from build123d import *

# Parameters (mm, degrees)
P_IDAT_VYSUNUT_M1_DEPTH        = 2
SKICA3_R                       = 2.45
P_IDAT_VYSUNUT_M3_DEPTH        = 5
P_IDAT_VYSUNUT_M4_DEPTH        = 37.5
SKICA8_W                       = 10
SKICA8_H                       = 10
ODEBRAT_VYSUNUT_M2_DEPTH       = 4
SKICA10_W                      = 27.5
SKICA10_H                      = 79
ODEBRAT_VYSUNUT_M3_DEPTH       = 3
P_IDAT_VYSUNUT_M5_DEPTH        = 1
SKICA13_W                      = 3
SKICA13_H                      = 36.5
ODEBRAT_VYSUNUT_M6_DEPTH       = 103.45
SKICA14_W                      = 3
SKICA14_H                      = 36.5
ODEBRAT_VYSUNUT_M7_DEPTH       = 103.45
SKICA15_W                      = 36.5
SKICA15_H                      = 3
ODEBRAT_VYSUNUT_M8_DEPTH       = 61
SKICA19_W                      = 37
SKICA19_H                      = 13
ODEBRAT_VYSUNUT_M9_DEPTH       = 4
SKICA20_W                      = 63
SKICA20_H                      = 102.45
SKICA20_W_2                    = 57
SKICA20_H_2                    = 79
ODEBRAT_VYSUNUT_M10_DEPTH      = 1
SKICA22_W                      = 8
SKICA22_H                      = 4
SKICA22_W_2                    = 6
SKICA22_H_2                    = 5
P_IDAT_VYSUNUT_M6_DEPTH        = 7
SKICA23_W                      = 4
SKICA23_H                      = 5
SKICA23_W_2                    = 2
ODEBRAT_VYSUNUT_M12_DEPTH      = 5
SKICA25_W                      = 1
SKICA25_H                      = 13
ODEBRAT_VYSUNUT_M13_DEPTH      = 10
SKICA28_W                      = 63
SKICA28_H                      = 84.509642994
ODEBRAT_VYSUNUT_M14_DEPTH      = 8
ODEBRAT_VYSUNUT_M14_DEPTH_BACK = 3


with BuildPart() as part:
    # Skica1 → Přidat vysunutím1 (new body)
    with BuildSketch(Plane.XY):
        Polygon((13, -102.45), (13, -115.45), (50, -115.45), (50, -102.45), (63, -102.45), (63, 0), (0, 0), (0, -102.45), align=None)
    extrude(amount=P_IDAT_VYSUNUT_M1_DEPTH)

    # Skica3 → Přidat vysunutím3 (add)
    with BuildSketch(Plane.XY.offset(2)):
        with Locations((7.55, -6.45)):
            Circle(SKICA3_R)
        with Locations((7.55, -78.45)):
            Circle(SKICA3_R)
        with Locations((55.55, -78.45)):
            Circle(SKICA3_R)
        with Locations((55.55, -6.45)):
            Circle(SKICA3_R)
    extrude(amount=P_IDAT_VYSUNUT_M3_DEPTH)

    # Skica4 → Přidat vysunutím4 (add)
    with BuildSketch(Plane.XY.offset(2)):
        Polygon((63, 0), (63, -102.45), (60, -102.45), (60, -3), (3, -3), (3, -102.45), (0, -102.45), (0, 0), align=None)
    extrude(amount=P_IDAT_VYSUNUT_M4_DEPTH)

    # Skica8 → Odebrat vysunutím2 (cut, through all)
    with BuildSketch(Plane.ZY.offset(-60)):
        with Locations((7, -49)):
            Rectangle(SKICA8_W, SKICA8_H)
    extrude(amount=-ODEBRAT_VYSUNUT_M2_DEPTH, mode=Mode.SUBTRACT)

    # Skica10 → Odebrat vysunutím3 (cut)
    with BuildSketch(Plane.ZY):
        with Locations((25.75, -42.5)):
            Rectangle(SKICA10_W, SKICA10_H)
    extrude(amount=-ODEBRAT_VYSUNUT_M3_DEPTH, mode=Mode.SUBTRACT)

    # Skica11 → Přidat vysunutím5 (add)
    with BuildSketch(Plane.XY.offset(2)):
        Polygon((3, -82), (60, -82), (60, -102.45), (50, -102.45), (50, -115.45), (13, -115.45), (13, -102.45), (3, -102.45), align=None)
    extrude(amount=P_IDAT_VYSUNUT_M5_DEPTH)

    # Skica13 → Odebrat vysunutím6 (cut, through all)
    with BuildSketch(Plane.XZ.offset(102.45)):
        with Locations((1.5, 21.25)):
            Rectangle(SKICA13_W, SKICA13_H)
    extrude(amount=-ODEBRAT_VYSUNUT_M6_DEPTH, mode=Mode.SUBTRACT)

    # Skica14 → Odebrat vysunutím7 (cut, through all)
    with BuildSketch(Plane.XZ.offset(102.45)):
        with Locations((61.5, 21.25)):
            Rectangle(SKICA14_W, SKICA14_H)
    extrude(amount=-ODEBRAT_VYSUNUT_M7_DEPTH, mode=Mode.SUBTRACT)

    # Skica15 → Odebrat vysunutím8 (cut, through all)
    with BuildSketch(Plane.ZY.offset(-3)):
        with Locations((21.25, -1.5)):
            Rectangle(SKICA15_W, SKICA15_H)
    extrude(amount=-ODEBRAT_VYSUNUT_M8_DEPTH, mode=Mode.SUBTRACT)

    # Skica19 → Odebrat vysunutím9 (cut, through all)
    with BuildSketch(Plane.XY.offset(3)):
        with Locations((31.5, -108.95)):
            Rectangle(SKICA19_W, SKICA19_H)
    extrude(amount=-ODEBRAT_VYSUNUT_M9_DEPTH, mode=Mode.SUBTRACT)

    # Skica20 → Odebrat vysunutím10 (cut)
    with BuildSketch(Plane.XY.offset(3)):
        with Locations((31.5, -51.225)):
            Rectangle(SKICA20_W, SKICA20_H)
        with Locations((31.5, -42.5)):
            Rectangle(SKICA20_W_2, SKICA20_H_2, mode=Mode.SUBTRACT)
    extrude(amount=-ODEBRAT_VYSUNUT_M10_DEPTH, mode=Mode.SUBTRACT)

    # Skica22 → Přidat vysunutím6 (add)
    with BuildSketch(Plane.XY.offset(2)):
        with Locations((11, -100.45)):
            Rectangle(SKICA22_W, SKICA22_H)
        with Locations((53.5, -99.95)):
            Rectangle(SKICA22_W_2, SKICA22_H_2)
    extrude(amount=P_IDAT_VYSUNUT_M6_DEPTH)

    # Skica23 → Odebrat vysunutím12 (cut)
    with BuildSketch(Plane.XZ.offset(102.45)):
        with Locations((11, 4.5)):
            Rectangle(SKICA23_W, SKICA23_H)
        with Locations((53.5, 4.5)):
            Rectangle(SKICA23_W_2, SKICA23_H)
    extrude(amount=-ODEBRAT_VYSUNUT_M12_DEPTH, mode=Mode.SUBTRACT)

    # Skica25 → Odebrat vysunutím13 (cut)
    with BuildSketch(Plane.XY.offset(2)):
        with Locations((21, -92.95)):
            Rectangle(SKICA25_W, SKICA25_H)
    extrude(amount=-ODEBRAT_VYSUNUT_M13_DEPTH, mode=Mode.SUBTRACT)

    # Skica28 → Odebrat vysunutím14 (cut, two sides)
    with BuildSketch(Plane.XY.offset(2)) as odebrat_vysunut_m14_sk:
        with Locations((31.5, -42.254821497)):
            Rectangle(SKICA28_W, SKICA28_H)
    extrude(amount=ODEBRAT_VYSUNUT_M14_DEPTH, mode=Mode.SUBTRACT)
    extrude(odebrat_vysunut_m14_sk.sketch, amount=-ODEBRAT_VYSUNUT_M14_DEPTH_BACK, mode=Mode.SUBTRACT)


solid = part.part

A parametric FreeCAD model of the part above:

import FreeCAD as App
import Part
import Sketcher

V = App.Vector
Q = App.Units.Quantity


def add_polygon(sketch, points):
    """Adds a closed chain of lines whose ends are joined by coincident constraints."""
    first, n = sketch.GeometryCount, len(points)
    for a, b in zip(points, points[1:] + points[:1]):
        sketch.addGeometry(Part.LineSegment(App.Vector(*a, 0), App.Vector(*b, 0)), False)
    for i in range(n):
        sketch.addConstraint(Sketcher.Constraint("Coincident", first + i, 2, first + (i + 1) % n, 1))

doc = App.newDocument("Part")
body = doc.addObject("PartDesign::Body", "Body")

# Sketch on XY plane
sketch1 = doc.addObject("Sketcher::SketchObject", "Sketch")
body.addObject(sketch1)
sketch1.AttachmentSupport = (doc.XY_Plane, [""])
sketch1.MapMode = "FlatFace"
add_polygon(sketch1, [(13, -102), (13, -115), (50, -115), (50, -102), (63, -102), (63, 0), (0, 0), (0, -102)])  # lines 0-7
sketch1.addConstraint([
    Sketcher.Constraint("Vertical", 0),
    Sketcher.Constraint("Horizontal", 1),
    Sketcher.Constraint("Vertical", 2),
    Sketcher.Constraint("Horizontal", 3),
    Sketcher.Constraint("Vertical", 4),
    Sketcher.Constraint("Horizontal", 5),
    Sketcher.Constraint("Vertical", 6),
    Sketcher.Constraint("Horizontal", 7),
    Sketcher.Constraint("Coincident", 5, 2, -1, 1),
    Sketcher.Constraint("Horizontal", 3, 2, 6, 2),
    Sketcher.Constraint("Equal", 3, 7),
    Sketcher.Constraint("Equal", 7, 0),
    Sketcher.Constraint("DistanceX", 1, 1, 1, 2, Q("37 mm")),
    Sketcher.Constraint("DistanceX", 3, 1, 3, 2, Q("13 mm")),
    Sketcher.Constraint("DistanceY", 4, 1, 4, 2, Q("102.45 mm")),
])
pad1 = doc.addObject("PartDesign::Pad", "Pad")
body.addObject(pad1)
pad1.Profile = sketch1
pad1.Length = 2

# Sketch on XY plane
sketch2 = doc.addObject("Sketcher::SketchObject", "Sketch001")
body.addObject(sketch2)
sketch2.AttachmentSupport = (doc.XY_Plane, [""])
sketch2.MapMode = "FlatFace"
sketch2.AttachmentOffset = App.Placement(V(0, 0, 2), App.Rotation())
sketch2.addGeometry([
    Part.Circle(V(7.5, -6.5, 0), V(0, 0, 1), 2.5),
    Part.Circle(V(7.5, -78.5, 0), V(0, 0, 1), 2.5),
    Part.Circle(V(55.5, -78.5, 0), V(0, 0, 1), 2.5),
    Part.Circle(V(55.5, -6.5, 0), V(0, 0, 1), 2.5),
], False)
sketch2.addConstraint([
    Sketcher.Constraint("Equal", 0, 1),
    Sketcher.Constraint("Equal", 1, 2),
    Sketcher.Constraint("Equal", 2, 3),
    Sketcher.Constraint("Horizontal", 1, 3, 2, 3),
    Sketcher.Constraint("Horizontal", 0, 3, 3, 3),
    Sketcher.Constraint("Vertical", 0, 3, 1, 3),
    Sketcher.Constraint("Vertical", 2, 3, 3, 3),
    Sketcher.Constraint("Diameter", 0, Q("4.9 mm")),
    Sketcher.Constraint("DistanceY", 1, 3, 0, 3, Q("72 mm")),
    Sketcher.Constraint("DistanceX", 1, 3, 2, 3, Q("48 mm")),
    Sketcher.Constraint("DistanceX", -1, 1, 0, 3, Q("7.55 mm")),
    Sketcher.Constraint("DistanceY", 0, 3, -1, 1, Q("6.45 mm")),
])
pad2 = doc.addObject("PartDesign::Pad", "Pad001")
body.addObject(pad2)
pad2.Profile = sketch2
pad2.Length = 5

# Sketch on XY plane
sketch3 = doc.addObject("Sketcher::SketchObject", "Sketch002")
body.addObject(sketch3)
sketch3.AttachmentSupport = (doc.XY_Plane, [""])
sketch3.MapMode = "FlatFace"
sketch3.AttachmentOffset = App.Placement(V(0, 0, 2), App.Rotation())
add_polygon(sketch3, [(63, -102.5), (63, 0), (0, 0), (0, -102.5), (3, -102.5), (3, -3), (60, -3), (60, -102.5)])  # lines 0-7
sketch3.addConstraint([
    Sketcher.Constraint("Vertical", 0),
    Sketcher.Constraint("Horizontal", 1),
    Sketcher.Constraint("Vertical", 2),
    Sketcher.Constraint("Horizontal", 3),
    Sketcher.Constraint("Vertical", 4),
    Sketcher.Constraint("Horizontal", 5),
    Sketcher.Constraint("Vertical", 6),
    Sketcher.Constraint("Horizontal", 7),
    Sketcher.Constraint("Coincident", 1, 2, -1, 1),
    Sketcher.Constraint("Horizontal", 3, 2, 6, 2),
    Sketcher.Constraint("Equal", 3, 7),
    Sketcher.Constraint("DistanceX", 1, 2, 1, 1, Q("63 mm")),
    Sketcher.Constraint("DistanceX", 3, 1, 3, 2, Q("3 mm")),
    Sketcher.Constraint("DistanceY", 4, 2, -1, 1, Q("3 mm")),
    Sketcher.Constraint("DistanceY", 0, 1, 0, 2, Q("102.45 mm")),
])
pad3 = doc.addObject("PartDesign::Pad", "Pad002")
body.addObject(pad3)
pad3.Profile = sketch3
pad3.Length = 37.5

# Sketch on YZ plane
sketch4 = doc.addObject("Sketcher::SketchObject", "Sketch003")
body.addObject(sketch4)
sketch4.AttachmentSupport = (doc.YZ_Plane, [""])
sketch4.MapMode = "FlatFace"
sketch4.AttachmentOffset = App.Placement(V(0, 0, 60), App.Rotation())
add_polygon(sketch4, [(-44, 2), (-54, 2), (-54, 12), (-44, 12)])  # lines 0-3
sketch4.addConstraint([
    Sketcher.Constraint("Horizontal", 0),
    Sketcher.Constraint("Vertical", 1),
    Sketcher.Constraint("Horizontal", 2),
    Sketcher.Constraint("Vertical", 3),
    Sketcher.Constraint("Equal", 2, 1),
    Sketcher.Constraint("DistanceX", 0, 2, 0, 1, Q("10 mm")),
    Sketcher.Constraint("DistanceX", 0, 2, -1, 1, Q("54 mm")),
    Sketcher.Constraint("DistanceY", -1, 1, 0, 2, Q("2 mm")),
])
pocket1 = doc.addObject("PartDesign::Pocket", "Pocket")
body.addObject(pocket1)
pocket1.Profile = sketch4
pocket1.Type = "ThroughAll"
pocket1.Reversed = True

# Sketch on YZ plane
sketch5 = doc.addObject("Sketcher::SketchObject", "Sketch004")
body.addObject(sketch5)
sketch5.AttachmentSupport = (doc.YZ_Plane, [""])
sketch5.MapMode = "FlatFace"
add_polygon(sketch5, [(-3, 12), (-82, 12), (-82, 40), (-3, 40)])  # lines 0-3
sketch5.addConstraint([
    Sketcher.Constraint("Horizontal", 0),
    Sketcher.Constraint("Vertical", 1),
    Sketcher.Constraint("Horizontal", 2),
    Sketcher.Constraint("Vertical", 3),
    Sketcher.Constraint("DistanceX", 0, 2, 0, 1, Q("79 mm")),
    Sketcher.Constraint("DistanceY", 1, 1, 1, 2, Q("27.5 mm")),
    Sketcher.Constraint("DistanceX", 0, 2, -1, 1, Q("82 mm")),
    Sketcher.Constraint("DistanceY", -1, 1, 0, 2, Q("12 mm")),
])
pocket2 = doc.addObject("PartDesign::Pocket", "Pocket001")
body.addObject(pocket2)
pocket2.Profile = sketch5
pocket2.Length = 3
pocket2.Reversed = True

# Sketch on XY plane
sketch6 = doc.addObject("Sketcher::SketchObject", "Sketch005")
body.addObject(sketch6)
sketch6.AttachmentSupport = (doc.XY_Plane, [""])
sketch6.MapMode = "FlatFace"
sketch6.AttachmentOffset = App.Placement(V(0, 0, 2), App.Rotation())
add_polygon(sketch6, [(60, -82), (3, -82), (3, -102), (13, -102), (13, -115), (50, -115), (50, -102), (60, -102)])  # lines 0-7
sketch6.addConstraint([
    Sketcher.Constraint("Horizontal", 0),
    Sketcher.Constraint("Vertical", 1),
    Sketcher.Constraint("Horizontal", 2),
    Sketcher.Constraint("Vertical", 3),
    Sketcher.Constraint("Horizontal", 4),
    Sketcher.Constraint("Vertical", 5),
    Sketcher.Constraint("Horizontal", 6),
    Sketcher.Constraint("Vertical", 7),
    Sketcher.Constraint("Horizontal", 2, 2, 5, 2),
    Sketcher.Constraint("Equal", 2, 6),
    Sketcher.Constraint("DistanceX", 0, 2, 0, 1, Q("57 mm")),
    Sketcher.Constraint("DistanceX", 2, 1, 2, 2, Q("10 mm")),
    Sketcher.Constraint("DistanceY", 3, 2, 3, 1, Q("13 mm")),
    Sketcher.Constraint("DistanceX", -1, 1, 0, 2, Q("3 mm")),
    Sketcher.Constraint("DistanceY", 0, 2, -1, 1, Q("82 mm")),
    Sketcher.Constraint("DistanceY", 1, 2, 1, 1, Q("20.45 mm")),
])
pad4 = doc.addObject("PartDesign::Pad", "Pad003")
body.addObject(pad4)
pad4.Profile = sketch6
pad4.Length = 1

# Sketch on XZ plane
sketch7 = doc.addObject("Sketcher::SketchObject", "Sketch006")
body.addObject(sketch7)
sketch7.AttachmentSupport = (doc.XZ_Plane, [""])
sketch7.MapMode = "FlatFace"
sketch7.AttachmentOffset = App.Placement(V(0, 0, 102.45), App.Rotation())
add_polygon(sketch7, [(0, 39.5), (0, 3), (3, 3), (3, 39.5)])  # lines 0-3
sketch7.addConstraint([
    Sketcher.Constraint("Vertical", 0),
    Sketcher.Constraint("Horizontal", 1),
    Sketcher.Constraint("Vertical", 2),
    Sketcher.Constraint("Horizontal", 3),
    Sketcher.Constraint("PointOnObject", 0, 2, -2),
    Sketcher.Constraint("DistanceX", 1, 1, 1, 2, Q("3 mm")),
    Sketcher.Constraint("DistanceY", 0, 2, 0, 1, Q("36.5 mm")),
    Sketcher.Constraint("DistanceY", -1, 1, 0, 2, Q("3 mm")),
])
pocket3 = doc.addObject("PartDesign::Pocket", "Pocket002")
body.addObject(pocket3)
pocket3.Profile = sketch7
pocket3.Type = "ThroughAll"

# Sketch on XZ plane
sketch8 = doc.addObject("Sketcher::SketchObject", "Sketch007")
body.addObject(sketch8)
sketch8.AttachmentSupport = (doc.XZ_Plane, [""])
sketch8.MapMode = "FlatFace"
sketch8.AttachmentOffset = App.Placement(V(0, 0, 102.45), App.Rotation())
add_polygon(sketch8, [(60, 39.5), (60, 3), (63, 3), (63, 39.5)])  # lines 0-3
sketch8.addConstraint([
    Sketcher.Constraint("Vertical", 0),
    Sketcher.Constraint("Horizontal", 1),
    Sketcher.Constraint("Vertical", 2),
    Sketcher.Constraint("Horizontal", 3),
    Sketcher.Constraint("DistanceX", 1, 1, 1, 2, Q("3 mm")),
    Sketcher.Constraint("DistanceY", 0, 2, 0, 1, Q("36.5 mm")),
    Sketcher.Constraint("DistanceX", -1, 1, 0, 2, Q("60 mm")),
    Sketcher.Constraint("DistanceY", -1, 1, 0, 2, Q("3 mm")),
])
pocket4 = doc.addObject("PartDesign::Pocket", "Pocket003")
body.addObject(pocket4)
pocket4.Profile = sketch8
pocket4.Type = "ThroughAll"

# Sketch on YZ plane
sketch9 = doc.addObject("Sketcher::SketchObject", "Sketch008")
body.addObject(sketch9)
sketch9.AttachmentSupport = (doc.YZ_Plane, [""])
sketch9.MapMode = "FlatFace"
sketch9.AttachmentOffset = App.Placement(V(0, 0, 3), App.Rotation())
add_polygon(sketch9, [(0, 3), (-3, 3), (-3, 39.5), (0, 39.5)])  # lines 0-3
sketch9.addConstraint([
    Sketcher.Constraint("Horizontal", 0),
    Sketcher.Constraint("Vertical", 1),
    Sketcher.Constraint("Horizontal", 2),
    Sketcher.Constraint("Vertical", 3),
    Sketcher.Constraint("PointOnObject", 2, 2, -2),
    Sketcher.Constraint("DistanceX", 0, 2, 0, 1, Q("3 mm")),
    Sketcher.Constraint("DistanceY", 1, 1, 1, 2, Q("36.5 mm")),
    Sketcher.Constraint("DistanceY", -1, 1, 0, 2, Q("3 mm")),
])
pocket5 = doc.addObject("PartDesign::Pocket", "Pocket004")
body.addObject(pocket5)
pocket5.Profile = sketch9
pocket5.Type = "ThroughAll"
pocket5.Reversed = True

# Sketch on XY plane
sketch10 = doc.addObject("Sketcher::SketchObject", "Sketch009")
body.addObject(sketch10)
sketch10.AttachmentSupport = (doc.XY_Plane, [""])
sketch10.MapMode = "FlatFace"
sketch10.AttachmentOffset = App.Placement(V(0, 0, 3), App.Rotation())
add_polygon(sketch10, [(13, -102), (13, -115), (50, -115), (50, -102)])  # lines 0-3
sketch10.addConstraint([
    Sketcher.Constraint("Vertical", 0),
    Sketcher.Constraint("Horizontal", 1),
    Sketcher.Constraint("Vertical", 2),
    Sketcher.Constraint("Horizontal", 3),
    Sketcher.Constraint("DistanceX", 1, 1, 1, 2, Q("37 mm")),
    Sketcher.Constraint("DistanceY", 0, 2, 0, 1, Q("13 mm")),
    Sketcher.Constraint("DistanceX", -1, 1, 0, 2, Q("13 mm")),
    Sketcher.Constraint("DistanceY", 0, 2, -1, 1, Q("115.45 mm")),
])
pocket6 = doc.addObject("PartDesign::Pocket", "Pocket005")
body.addObject(pocket6)
pocket6.Profile = sketch10
pocket6.Type = "ThroughAll"

# Sketch on XY plane
sketch11 = doc.addObject("Sketcher::SketchObject", "Sketch010")
body.addObject(sketch11)
sketch11.AttachmentSupport = (doc.XY_Plane, [""])
sketch11.MapMode = "FlatFace"
sketch11.AttachmentOffset = App.Placement(V(0, 0, 3), App.Rotation())
add_polygon(sketch11, [(0, 0), (0, -102), (63, -102), (63, 0)])  # lines 0-3
add_polygon(sketch11, [(60, -82), (3, -82), (3, -3), (60, -3)])  # lines 4-7
sketch11.addConstraint([
    Sketcher.Constraint("Vertical", 0),
    Sketcher.Constraint("Horizontal", 1),
    Sketcher.Constraint("Vertical", 2),
    Sketcher.Constraint("Horizontal", 3),
    Sketcher.Constraint("Horizontal", 4),
    Sketcher.Constraint("Vertical", 5),
    Sketcher.Constraint("Horizontal", 6),
    Sketcher.Constraint("Vertical", 7),
    Sketcher.Constraint("Coincident", 3, 2, -1, 1),
    Sketcher.Constraint("DistanceX", 1, 1, 1, 2, Q("63 mm")),
    Sketcher.Constraint("DistanceX", 4, 2, 4, 1, Q("57 mm")),
    Sketcher.Constraint("DistanceY", 5, 1, 5, 2, Q("79 mm")),
    Sketcher.Constraint("DistanceX", -1, 1, 4, 2, Q("3 mm")),
    Sketcher.Constraint("DistanceY", 4, 2, -1, 1, Q("82 mm")),
    Sketcher.Constraint("DistanceY", 0, 2, 0, 1, Q("102.45 mm")),
])
pocket7 = doc.addObject("PartDesign::Pocket", "Pocket006")
body.addObject(pocket7)
pocket7.Profile = sketch11
pocket7.Length = 1

# Sketch on XY plane
sketch12 = doc.addObject("Sketcher::SketchObject", "Sketch011")
body.addObject(sketch12)
sketch12.AttachmentSupport = (doc.XY_Plane, [""])
sketch12.MapMode = "FlatFace"
sketch12.AttachmentOffset = App.Placement(V(0, 0, 2), App.Rotation())
add_polygon(sketch12, [(7, -98.5), (7, -102.5), (15, -102.5), (15, -98.5)])  # lines 0-3
add_polygon(sketch12, [(50.5, -97.5), (50.5, -102.5), (56.5, -102.5), (56.5, -97.5)])  # lines 4-7
sketch12.addConstraint([
    Sketcher.Constraint("Vertical", 0),
    Sketcher.Constraint("Horizontal", 1),
    Sketcher.Constraint("Vertical", 2),
    Sketcher.Constraint("Horizontal", 3),
    Sketcher.Constraint("Vertical", 4),
    Sketcher.Constraint("Horizontal", 5),
    Sketcher.Constraint("Vertical", 6),
    Sketcher.Constraint("Horizontal", 7),
    Sketcher.Constraint("Horizontal", 1, 2, 4, 2),
    Sketcher.Constraint("DistanceX", 1, 1, 1, 2, Q("8 mm")),
    Sketcher.Constraint("DistanceX", 5, 1, 5, 2, Q("6 mm")),
    Sketcher.Constraint("DistanceY", 0, 2, 0, 1, Q("4 mm")),
    Sketcher.Constraint("DistanceY", 4, 2, 4, 1, Q("5 mm")),
    Sketcher.Constraint("DistanceX", -1, 1, 0, 2, Q("7 mm")),
    Sketcher.Constraint("DistanceX", -1, 1, 4, 2, Q("50.5 mm")),
    Sketcher.Constraint("DistanceY", 0, 2, -1, 1, Q("102.45 mm")),
])
pad5 = doc.addObject("PartDesign::Pad", "Pad004")
body.addObject(pad5)
pad5.Profile = sketch12
pad5.Length = 7

# Sketch on XZ plane
sketch13 = doc.addObject("Sketcher::SketchObject", "Sketch012")
body.addObject(sketch13)
sketch13.AttachmentSupport = (doc.XZ_Plane, [""])
sketch13.MapMode = "FlatFace"
sketch13.AttachmentOffset = App.Placement(V(0, 0, 102.45), App.Rotation())
add_polygon(sketch13, [(9, 7), (9, 2), (13, 2), (13, 7)])  # lines 0-3
add_polygon(sketch13, [(52.5, 7), (52.5, 2), (54.5, 2), (54.5, 7)])  # lines 4-7
sketch13.addConstraint([
    Sketcher.Constraint("Vertical", 0),
    Sketcher.Constraint("Horizontal", 1),
    Sketcher.Constraint("Vertical", 2),
    Sketcher.Constraint("Horizontal", 3),
    Sketcher.Constraint("Vertical", 4),
    Sketcher.Constraint("Horizontal", 5),
    Sketcher.Constraint("Vertical", 6),
    Sketcher.Constraint("Horizontal", 7),
    Sketcher.Constraint("Horizontal", 1, 2, 4, 2),
    Sketcher.Constraint("Horizontal", 3, 2, 6, 2),
    Sketcher.Constraint("DistanceX", 1, 1, 1, 2, Q("4 mm")),
    Sketcher.Constraint("DistanceX", 5, 1, 5, 2, Q("2 mm")),
    Sketcher.Constraint("DistanceY", 0, 2, 0, 1, Q("5 mm")),
    Sketcher.Constraint("DistanceX", -1, 1, 0, 2, Q("9 mm")),
    Sketcher.Constraint("DistanceY", -1, 1, 0, 2, Q("2 mm")),
    Sketcher.Constraint("DistanceX", -1, 1, 4, 2, Q("52.5 mm")),
])
pocket8 = doc.addObject("PartDesign::Pocket", "Pocket007")
body.addObject(pocket8)
pocket8.Profile = sketch13
pocket8.Length = 5

# Sketch on XY plane
sketch14 = doc.addObject("Sketcher::SketchObject", "Sketch013")
body.addObject(sketch14)
sketch14.AttachmentSupport = (doc.XY_Plane, [""])
sketch14.MapMode = "FlatFace"
sketch14.AttachmentOffset = App.Placement(V(0, 0, 2), App.Rotation())
add_polygon(sketch14, [(20.5, -86.5), (20.5, -99.5), (21.5, -99.5), (21.5, -86.5)])  # lines 0-3
sketch14.addConstraint([
    Sketcher.Constraint("Vertical", 0),
    Sketcher.Constraint("Horizontal", 1),
    Sketcher.Constraint("Vertical", 2),
    Sketcher.Constraint("Horizontal", 3),
    Sketcher.Constraint("DistanceX", 1, 1, 1, 2, Q("1 mm")),
    Sketcher.Constraint("DistanceY", 0, 2, 0, 1, Q("13 mm")),
    Sketcher.Constraint("DistanceX", -1, 1, 0, 2, Q("20.5 mm")),
    Sketcher.Constraint("DistanceY", 0, 2, -1, 1, Q("99.45 mm")),
])
pocket9 = doc.addObject("PartDesign::Pocket", "Pocket008")
body.addObject(pocket9)
pocket9.Profile = sketch14
pocket9.Length = 10

# Sketch on XY plane
sketch15 = doc.addObject("Sketcher::SketchObject", "Sketch014")
body.addObject(sketch15)
sketch15.AttachmentSupport = (doc.XY_Plane, [""])
sketch15.MapMode = "FlatFace"
sketch15.AttachmentOffset = App.Placement(V(0, 0, 2), App.Rotation())
add_polygon(sketch15, [(0, 0), (0, -85), (63, -85), (63, 0)])  # lines 0-3
sketch15.addConstraint([
    Sketcher.Constraint("Vertical", 0),
    Sketcher.Constraint("Horizontal", 1),
    Sketcher.Constraint("Vertical", 2),
    Sketcher.Constraint("Horizontal", 3),
    Sketcher.Constraint("Coincident", 3, 2, -1, 1),
    Sketcher.Constraint("DistanceX", 1, 1, 1, 2, Q("63 mm")),
    Sketcher.Constraint("DistanceY", 0, 2, 0, 1, Q("84.509643 mm")),
])
pocket10 = doc.addObject("PartDesign::Pocket", "Pocket009")
body.addObject(pocket10)
pocket10.Profile = sketch15
pocket10.Type = "ThroughAll"
pocket10.Midplane = True

doc.recompute()
